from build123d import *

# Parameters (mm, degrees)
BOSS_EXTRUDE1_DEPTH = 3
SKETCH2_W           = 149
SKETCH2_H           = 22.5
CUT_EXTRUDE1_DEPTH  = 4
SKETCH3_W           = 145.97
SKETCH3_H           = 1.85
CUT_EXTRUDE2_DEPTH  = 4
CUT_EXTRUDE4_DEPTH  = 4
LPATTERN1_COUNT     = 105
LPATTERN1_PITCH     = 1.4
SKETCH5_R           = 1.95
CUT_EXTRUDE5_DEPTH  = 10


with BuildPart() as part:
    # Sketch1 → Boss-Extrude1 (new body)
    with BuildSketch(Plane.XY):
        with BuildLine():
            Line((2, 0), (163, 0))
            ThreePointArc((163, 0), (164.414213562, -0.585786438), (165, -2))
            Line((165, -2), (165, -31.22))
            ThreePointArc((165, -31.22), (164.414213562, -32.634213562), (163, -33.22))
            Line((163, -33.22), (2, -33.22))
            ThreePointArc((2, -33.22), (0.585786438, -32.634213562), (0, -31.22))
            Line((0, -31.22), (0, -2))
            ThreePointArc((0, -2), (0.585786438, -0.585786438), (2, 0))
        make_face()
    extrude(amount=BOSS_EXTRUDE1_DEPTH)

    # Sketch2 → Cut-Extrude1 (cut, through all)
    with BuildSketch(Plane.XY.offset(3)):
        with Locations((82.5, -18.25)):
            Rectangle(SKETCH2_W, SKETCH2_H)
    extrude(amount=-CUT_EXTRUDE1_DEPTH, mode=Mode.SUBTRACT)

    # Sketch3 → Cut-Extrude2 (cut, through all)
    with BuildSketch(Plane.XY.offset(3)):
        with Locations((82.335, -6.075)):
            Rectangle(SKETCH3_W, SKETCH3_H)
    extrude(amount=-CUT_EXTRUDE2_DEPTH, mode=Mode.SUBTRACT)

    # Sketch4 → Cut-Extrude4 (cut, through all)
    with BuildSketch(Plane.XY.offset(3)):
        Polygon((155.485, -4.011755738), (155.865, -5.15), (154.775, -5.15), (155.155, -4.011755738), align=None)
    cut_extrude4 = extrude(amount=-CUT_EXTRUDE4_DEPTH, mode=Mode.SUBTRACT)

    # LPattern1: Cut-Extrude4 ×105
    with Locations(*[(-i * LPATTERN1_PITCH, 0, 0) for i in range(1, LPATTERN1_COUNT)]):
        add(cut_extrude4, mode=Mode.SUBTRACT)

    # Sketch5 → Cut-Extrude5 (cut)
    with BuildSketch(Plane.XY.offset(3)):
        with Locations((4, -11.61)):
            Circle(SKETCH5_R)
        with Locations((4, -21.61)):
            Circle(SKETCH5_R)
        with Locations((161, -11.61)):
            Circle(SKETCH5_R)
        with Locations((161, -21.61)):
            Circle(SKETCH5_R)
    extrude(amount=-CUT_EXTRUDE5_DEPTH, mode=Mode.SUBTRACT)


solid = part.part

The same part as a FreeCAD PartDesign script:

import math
import FreeCAD as App
import Part
import Sketcher

doc = App.newDocument("Part")
body = doc.addObject("PartDesign::Body", "Body")

# Sketch on XY plane
sketch1 = doc.addObject("Sketcher::SketchObject", "Sketch")
body.addObject(sketch1)
sketch1.AttachmentSupport = (doc.XY_Plane, [""])
sketch1.MapMode = "FlatFace"
sketch1.addGeometry(Part.LineSegment(App.Vector(163, 0, 0), App.Vector(2, 0, 0)), False)
sketch1.addGeometry(Part.ArcOfCircle(Part.Circle(App.Vector(2, -2, 0), App.Vector(0, 0, 1), 2), math.radians(90), math.radians(180)), False)
sketch1.addGeometry(Part.LineSegment(App.Vector(0, -2, 0), App.Vector(0, -31.2, 0)), False)
sketch1.addGeometry(Part.ArcOfCircle(Part.Circle(App.Vector(2, -31.2, 0), App.Vector(0, 0, 1), 2), math.radians(-180), math.radians(-90)), False)
sketch1.addGeometry(Part.LineSegment(App.Vector(2, -33.2, 0), App.Vector(163, -33.2, 0)), False)
sketch1.addGeometry(Part.ArcOfCircle(Part.Circle(App.Vector(163, -31.2, 0), App.Vector(0, 0, 1), 2), math.radians(-90), math.radians(0)), False)
sketch1.addGeometry(Part.LineSegment(App.Vector(165, -31.2, 0), App.Vector(165, -2, 0)), False)
sketch1.addGeometry(Part.ArcOfCircle(Part.Circle(App.Vector(163, -2, 0), App.Vector(0, 0, 1), 2), math.radians(0), math.radians(90)), False)
sketch1.addConstraint(Sketcher.Constraint("Tangent", 0, 2, 1, 1))
sketch1.addConstraint(Sketcher.Constraint("Tangent", 1, 2, 2, 1))
sketch1.addConstraint(Sketcher.Constraint("Tangent", 2, 2, 3, 1))
sketch1.addConstraint(Sketcher.Constraint("Tangent", 3, 2, 4, 1))
sketch1.addConstraint(Sketcher.Constraint("Tangent", 4, 2, 5, 1))
sketch1.addConstraint(Sketcher.Constraint("Tangent", 5, 2, 6, 1))
sketch1.addConstraint(Sketcher.Constraint("Tangent", 6, 2, 7, 1))
sketch1.addConstraint(Sketcher.Constraint("Tangent", 7, 2, 0, 1))
sketch1.addConstraint(Sketcher.Constraint("Horizontal", 0))
sketch1.addConstraint(Sketcher.Constraint("Vertical", 2))
sketch1.addConstraint(Sketcher.Constraint("Horizontal", 4))
sketch1.addConstraint(Sketcher.Constraint("Vertical", 6))
sketch1.addConstraint(Sketcher.Constraint("Equal", 1, 3))
sketch1.addConstraint(Sketcher.Constraint("Equal", 3, 5))
sketch1.addConstraint(Sketcher.Constraint("Equal", 5, 7))
sketch1.addConstraint(Sketcher.Constraint("PointOnObject", 0, 2, -1))
sketch1.addConstraint(Sketcher.Constraint("PointOnObject", 1, 2, -2))
sketch1.addConstraint(Sketcher.Constraint("Radius", 1, 2.0))
sketch1.addConstraint(Sketcher.Constraint("DistanceX", 0, 2, 0, 1, 161.0))
sketch1.addConstraint(Sketcher.Constraint("DistanceY", 2, 2, 2, 1, 29.22))
pad1 = doc.addObject("PartDesign::Pad", "Pad")
body.addObject(pad1)
pad1.Profile = sketch1
pad1.Length = 3

# Sketch on XY plane
sketch2 = doc.addObject("Sketcher::SketchObject", "Sketch001")
body.addObject(sketch2)
sketch2.AttachmentSupport = (doc.XY_Plane, [""])
sketch2.MapMode = "FlatFace"
sketch2.AttachmentOffset = App.Placement(App.Vector(0, 0, 3), App.Rotation())
sketch2.addGeometry(Part.LineSegment(App.Vector(8, -7, 0), App.Vector(8, -30, 0)), False)
sketch2.addGeometry(Part.LineSegment(App.Vector(8, -30, 0), App.Vector(157, -30, 0)), False)
sketch2.addGeometry(Part.LineSegment(App.Vector(157, -30, 0), App.Vector(157, -7, 0)), False)
sketch2.addGeometry(Part.LineSegment(App.Vector(157, -7, 0), App.Vector(8, -7, 0)), False)
sketch2.addConstraint(Sketcher.Constraint("Coincident", 0, 2, 1, 1))
sketch2.addConstraint(Sketcher.Constraint("Coincident", 1, 2, 2, 1))
sketch2.addConstraint(Sketcher.Constraint("Coincident", 2, 2, 3, 1))
sketch2.addConstraint(Sketcher.Constraint("Coincident", 3, 2, 0, 1))
sketch2.addConstraint(Sketcher.Constraint("Vertical", 0))
sketch2.addConstraint(Sketcher.Constraint("Horizontal", 1))
sketch2.addConstraint(Sketcher.Constraint("Vertical", 2))
sketch2.addConstraint(Sketcher.Constraint("Horizontal", 3))
sketch2.addConstraint(Sketcher.Constraint("DistanceX", 1, 1, 1, 2, 149.0))
sketch2.addConstraint(Sketcher.Constraint("DistanceY", 0, 2, 0, 1, 22.5))
sketch2.addConstraint(Sketcher.Constraint("DistanceX", -1, 1, 0, 2, 8.0))
sketch2.addConstraint(Sketcher.Constraint("DistanceY", 2, 2, -1, 1, 7.0))
pocket1 = doc.addObject("PartDesign::Pocket", "Pocket")
body.addObject(pocket1)
pocket1.Profile = sketch2
pocket1.Type = "ThroughAll"

# Sketch on XY plane
sketch3 = doc.addObject("Sketcher::SketchObject", "Sketch002")
body.addObject(sketch3)
sketch3.AttachmentSupport = (doc.XY_Plane, [""])
sketch3.MapMode = "FlatFace"
sketch3.AttachmentOffset = App.Placement(App.Vector(0, 0, 3), App.Rotation())
sketch3.addGeometry(Part.LineSegment(App.Vector(9.3, -5.2, 0), App.Vector(9.3, -7, 0)), False)
sketch3.addGeometry(Part.LineSegment(App.Vector(9.3, -7, 0), App.Vector(155.3, -7, 0)), False)
sketch3.addGeometry(Part.LineSegment(App.Vector(155.3, -7, 0), App.Vector(155.3, -5.2, 0)), False)
sketch3.addGeometry(Part.LineSegment(App.Vector(155.3, -5.2, 0), App.Vector(9.3, -5.2, 0)), False)
sketch3.addConstraint(Sketcher.Constraint("Coincident", 0, 2, 1, 1))
sketch3.addConstraint(Sketcher.Constraint("Coincident", 1, 2, 2, 1))
sketch3.addConstraint(Sketcher.Constraint("Coincident", 2, 2, 3, 1))
sketch3.addConstraint(Sketcher.Constraint("Coincident", 3, 2, 0, 1))
sketch3.addConstraint(Sketcher.Constraint("Vertical", 0))
sketch3.addConstraint(Sketcher.Constraint("Horizontal", 1))
sketch3.addConstraint(Sketcher.Constraint("Vertical", 2))
sketch3.addConstraint(Sketcher.Constraint("Horizontal", 3))
sketch3.addConstraint(Sketcher.Constraint("DistanceY", 0, 2, -1, 1, 7.0))
sketch3.addConstraint(Sketcher.Constraint("DistanceX", 1, 1, 1, 2, 145.97))
sketch3.addConstraint(Sketcher.Constraint("DistanceY", 0, 2, 0, 1, 1.85))
sketch3.addConstraint(Sketcher.Constraint("DistanceX", -1, 1, 0, 2, 9.35))
pocket2 = doc.addObject("PartDesign::Pocket", "Pocket001")
body.addObject(pocket2)
pocket2.Profile = sketch3
pocket2.Type = "ThroughAll"

# Sketch on XY plane
sketch4 = doc.addObject("Sketcher::SketchObject", "Sketch003")
body.addObject(sketch4)
sketch4.AttachmentSupport = (doc.XY_Plane, [""])
sketch4.MapMode = "FlatFace"
sketch4.AttachmentOffset = App.Placement(App.Vector(0, 0, 3), App.Rotation())
sketch4.addGeometry(Part.LineSegment(App.Vector(155.87, -5.15, 0), App.Vector(155.49, -4.01, 0)), False)
sketch4.addGeometry(Part.LineSegment(App.Vector(155.49, -4.01, 0), App.Vector(155.16, -4.01, 0)), False)
sketch4.addGeometry(Part.LineSegment(App.Vector(155.16, -4.01, 0), App.Vector(154.78, -5.15, 0)), False)
sketch4.addGeometry(Part.LineSegment(App.Vector(154.78, -5.15, 0), App.Vector(155.87, -5.15, 0)), False)
sketch4.addConstraint(Sketcher.Constraint("Coincident", 0, 2, 1, 1))
sketch4.addConstraint(Sketcher.Constraint("Coincident", 1, 2, 2, 1))
sketch4.addConstraint(Sketcher.Constraint("Coincident", 2, 2, 3, 1))
sketch4.addConstraint(Sketcher.Constraint("Coincident", 3, 2, 0, 1))
sketch4.addConstraint(Sketcher.Constraint("Horizontal", 1))
sketch4.addConstraint(Sketcher.Constraint("Horizontal", 3))
sketch4.addConstraint(Sketcher.Constraint("Equal", 0, 2))
sketch4.addConstraint(Sketcher.Constraint("Distance", 0, 1.2))
sketch4.addConstraint(Sketcher.Constraint("DistanceX", 1, 2, 1, 1, 0.33))
sketch4.addConstraint(Sketcher.Constraint("DistanceX", 3, 1, 3, 2, 1.09))
sketch4.addConstraint(Sketcher.Constraint("DistanceY", 2, 2, -1, 1, 5.15))
sketch4.addConstraint(Sketcher.Constraint("DistanceX", -1, 1, 0, 2, 155.485))
pocket3 = doc.addObject("PartDesign::Pocket", "Pocket002")
body.addObject(pocket3)
pocket3.Profile = sketch4
pocket3.Type = "ThroughAll"
doc.recompute()

linearpattern = doc.addObject("PartDesign::LinearPattern", "LinearPattern")
body.addObject(linearpattern)
linearpattern.Originals = [pocket3]
linearpattern.Direction = (doc.X_Axis, [""])
linearpattern.Mode = "offset"
linearpattern.Offset = 1.4
linearpattern.Occurrences = 105
linearpattern.Reversed = True
body.Tip = linearpattern

# Sketch on XY plane
sketch5 = doc.addObject("Sketcher::SketchObject", "Sketch004")
body.addObject(sketch5)
sketch5.AttachmentSupport = (doc.XY_Plane, [""])
sketch5.MapMode = "FlatFace"
sketch5.AttachmentOffset = App.Placement(App.Vector(0, 0, 3), App.Rotation())
sketch5.addGeometry(Part.Circle(App.Vector(4, -11.6, 0), App.Vector(0, 0, 1), 1.9), False)
sketch5.addGeometry(Part.Circle(App.Vector(4, -21.6, 0), App.Vector(0, 0, 1), 1.9), False)
sketch5.addGeometry(Part.Circle(App.Vector(161, -11.6, 0), App.Vector(0, 0, 1), 1.9), False)
sketch5.addGeometry(Part.Circle(App.Vector(161, -21.6, 0), App.Vector(0, 0, 1), 1.9), False)
sketch5.addConstraint(Sketcher.Constraint("Equal", 0, 1))
sketch5.addConstraint(Sketcher.Constraint("Equal", 1, 2))
sketch5.addConstraint(Sketcher.Constraint("Equal", 2, 3))
sketch5.addConstraint(Sketcher.Constraint("Horizontal", 0, 3, 2, 3))
sketch5.addConstraint(Sketcher.Constraint("Horizontal", 1, 3, 3, 3))
sketch5.addConstraint(Sketcher.Constraint("Vertical", 0, 3, 1, 3))
sketch5.addConstraint(Sketcher.Constraint("Vertical", 2, 3, 3, 3))
sketch5.addConstraint(Sketcher.Constraint("Diameter", 0, 3.9))
sketch5.addConstraint(Sketcher.Constraint("DistanceX", -1, 1, 0, 3, 4.0))
sketch5.addConstraint(Sketcher.Constraint("DistanceX", -1, 1, 2, 3, 161.0))
sketch5.addConstraint(Sketcher.Constraint("DistanceY", 1, 3, 0, 3, 10.0))
sketch5.addConstraint(Sketcher.Constraint("DistanceY", 0, 3, -1, 1, 11.61))
pocket4 = doc.addObject("PartDesign::Pocket", "Pocket003")
body.addObject(pocket4)
pocket4.Profile = sketch5
pocket4.Length = 10

doc.recompute()
